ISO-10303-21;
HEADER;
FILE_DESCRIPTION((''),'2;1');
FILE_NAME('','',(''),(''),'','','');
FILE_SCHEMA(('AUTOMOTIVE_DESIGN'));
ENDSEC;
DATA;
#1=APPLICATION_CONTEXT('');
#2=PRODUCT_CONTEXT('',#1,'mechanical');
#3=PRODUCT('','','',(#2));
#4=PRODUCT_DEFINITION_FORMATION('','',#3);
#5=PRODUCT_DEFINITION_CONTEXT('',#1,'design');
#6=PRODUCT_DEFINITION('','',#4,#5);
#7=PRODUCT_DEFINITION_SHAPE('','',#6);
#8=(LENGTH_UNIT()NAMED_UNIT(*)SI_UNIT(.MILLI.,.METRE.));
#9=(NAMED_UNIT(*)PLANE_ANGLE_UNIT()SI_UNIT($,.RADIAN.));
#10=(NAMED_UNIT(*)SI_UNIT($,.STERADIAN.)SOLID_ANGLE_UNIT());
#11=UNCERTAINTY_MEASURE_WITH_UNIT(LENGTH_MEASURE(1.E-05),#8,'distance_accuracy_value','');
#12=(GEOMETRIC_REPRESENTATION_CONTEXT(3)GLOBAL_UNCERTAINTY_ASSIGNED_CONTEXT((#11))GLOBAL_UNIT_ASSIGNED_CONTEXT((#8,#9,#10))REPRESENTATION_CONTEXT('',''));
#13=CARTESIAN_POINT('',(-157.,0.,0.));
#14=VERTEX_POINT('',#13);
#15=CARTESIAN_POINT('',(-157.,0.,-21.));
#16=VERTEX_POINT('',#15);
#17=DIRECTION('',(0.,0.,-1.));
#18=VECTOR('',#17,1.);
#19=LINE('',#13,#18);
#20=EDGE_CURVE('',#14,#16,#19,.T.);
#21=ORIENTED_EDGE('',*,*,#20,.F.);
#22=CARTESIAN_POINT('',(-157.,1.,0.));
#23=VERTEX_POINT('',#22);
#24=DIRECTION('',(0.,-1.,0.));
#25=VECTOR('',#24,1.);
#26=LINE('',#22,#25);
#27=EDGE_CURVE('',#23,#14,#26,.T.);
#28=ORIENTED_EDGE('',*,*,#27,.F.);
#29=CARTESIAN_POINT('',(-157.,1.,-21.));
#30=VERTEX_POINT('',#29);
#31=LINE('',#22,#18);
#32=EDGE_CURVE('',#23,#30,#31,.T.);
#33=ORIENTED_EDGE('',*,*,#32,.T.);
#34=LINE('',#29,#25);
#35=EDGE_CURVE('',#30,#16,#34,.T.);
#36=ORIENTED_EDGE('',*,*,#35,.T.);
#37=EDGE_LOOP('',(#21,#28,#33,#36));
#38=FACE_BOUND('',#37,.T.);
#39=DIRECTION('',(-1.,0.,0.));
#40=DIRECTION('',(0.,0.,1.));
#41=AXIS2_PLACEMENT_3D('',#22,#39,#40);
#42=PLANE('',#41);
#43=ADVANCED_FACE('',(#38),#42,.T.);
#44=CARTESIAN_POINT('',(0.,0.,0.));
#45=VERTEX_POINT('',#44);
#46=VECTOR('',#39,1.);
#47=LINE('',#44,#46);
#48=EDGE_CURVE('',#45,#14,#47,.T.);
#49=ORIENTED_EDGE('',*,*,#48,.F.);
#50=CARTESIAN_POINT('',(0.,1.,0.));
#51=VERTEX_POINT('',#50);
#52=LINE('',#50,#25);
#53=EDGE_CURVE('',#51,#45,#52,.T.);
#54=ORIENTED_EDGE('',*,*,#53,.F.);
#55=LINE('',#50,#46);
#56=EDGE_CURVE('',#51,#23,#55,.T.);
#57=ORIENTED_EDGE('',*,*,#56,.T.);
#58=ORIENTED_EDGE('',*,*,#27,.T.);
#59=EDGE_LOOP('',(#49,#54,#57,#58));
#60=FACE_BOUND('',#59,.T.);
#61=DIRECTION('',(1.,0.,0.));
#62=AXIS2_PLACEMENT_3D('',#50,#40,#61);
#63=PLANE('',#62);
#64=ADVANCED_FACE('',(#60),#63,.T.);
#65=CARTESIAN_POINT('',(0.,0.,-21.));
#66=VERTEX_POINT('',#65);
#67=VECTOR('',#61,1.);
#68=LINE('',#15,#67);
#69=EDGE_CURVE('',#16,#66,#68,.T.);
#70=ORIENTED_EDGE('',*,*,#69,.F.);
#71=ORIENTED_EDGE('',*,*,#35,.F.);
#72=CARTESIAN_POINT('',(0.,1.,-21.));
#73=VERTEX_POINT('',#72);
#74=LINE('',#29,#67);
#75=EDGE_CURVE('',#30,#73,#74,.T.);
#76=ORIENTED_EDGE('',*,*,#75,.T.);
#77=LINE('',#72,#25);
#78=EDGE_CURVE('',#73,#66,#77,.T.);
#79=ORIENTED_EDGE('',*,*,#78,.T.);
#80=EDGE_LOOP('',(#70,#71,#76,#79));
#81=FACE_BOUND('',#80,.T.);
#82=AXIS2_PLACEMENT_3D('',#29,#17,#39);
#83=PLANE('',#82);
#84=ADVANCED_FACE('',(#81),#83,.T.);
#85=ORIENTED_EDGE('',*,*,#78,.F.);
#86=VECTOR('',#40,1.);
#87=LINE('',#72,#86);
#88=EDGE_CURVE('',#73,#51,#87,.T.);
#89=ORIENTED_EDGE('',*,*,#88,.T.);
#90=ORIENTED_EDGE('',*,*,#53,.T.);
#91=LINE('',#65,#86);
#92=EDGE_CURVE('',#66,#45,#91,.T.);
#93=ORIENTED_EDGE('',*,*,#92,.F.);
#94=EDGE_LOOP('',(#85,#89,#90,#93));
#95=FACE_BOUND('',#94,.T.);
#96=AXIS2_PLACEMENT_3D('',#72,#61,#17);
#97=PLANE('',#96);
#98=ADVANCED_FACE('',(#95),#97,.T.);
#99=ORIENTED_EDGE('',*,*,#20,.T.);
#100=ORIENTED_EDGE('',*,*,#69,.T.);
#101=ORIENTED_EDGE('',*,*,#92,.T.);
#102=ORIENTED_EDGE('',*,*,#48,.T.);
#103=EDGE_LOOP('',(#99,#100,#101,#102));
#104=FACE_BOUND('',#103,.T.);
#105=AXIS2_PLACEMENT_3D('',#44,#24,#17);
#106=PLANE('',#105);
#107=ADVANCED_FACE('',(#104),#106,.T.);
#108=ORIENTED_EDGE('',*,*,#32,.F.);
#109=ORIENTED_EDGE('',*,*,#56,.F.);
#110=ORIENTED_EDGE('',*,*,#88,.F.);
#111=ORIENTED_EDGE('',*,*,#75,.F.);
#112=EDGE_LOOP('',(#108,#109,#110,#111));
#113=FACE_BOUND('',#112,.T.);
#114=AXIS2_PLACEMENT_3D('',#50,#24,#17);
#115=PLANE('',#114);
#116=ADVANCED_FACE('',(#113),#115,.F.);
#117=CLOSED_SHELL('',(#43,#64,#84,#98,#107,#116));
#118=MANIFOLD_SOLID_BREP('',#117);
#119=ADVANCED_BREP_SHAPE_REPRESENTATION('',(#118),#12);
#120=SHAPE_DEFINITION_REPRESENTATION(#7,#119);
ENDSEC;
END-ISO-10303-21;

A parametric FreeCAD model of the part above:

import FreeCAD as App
import Part
import Sketcher

V = App.Vector


def add_polygon(sketch, points):
    """Adds a closed chain of lines whose ends are joined by coincident constraints."""
    first, n = sketch.GeometryCount, len(points)
    for a, b in zip(points, points[1:] + points[:1]):
        sketch.addGeometry(Part.LineSegment(App.Vector(*a, 0), App.Vector(*b, 0)), False)
    for i in range(n):
        sketch.addConstraint(Sketcher.Constraint("Coincident", first + i, 2, first + (i + 1) % n, 1))

doc = App.newDocument("Part")
body = doc.addObject("PartDesign::Body", "Body")

sketch1 = body.newObject("Sketcher::SketchObject", "Sketch")
sketch1.AttachmentSupport = (doc.getObject("XZ_Plane"), [""])
sketch1.MapMode = "FlatFace"
add_polygon(sketch1, [(-157, -21), (-157, 0), (0, 0), (0, -21)])
sketch1.addConstraint([
    Sketcher.Constraint("Vertical", 0),
    Sketcher.Constraint("Horizontal", 1),
    Sketcher.Constraint("Vertical", 2),
    Sketcher.Constraint("Horizontal", 3),
    Sketcher.Constraint("Coincident", 1, 2, -1, 1),
    Sketcher.Constraint("DistanceX", 1, 1, 1, 2, 157.0),
    Sketcher.Constraint("DistanceY", 0, 1, 0, 2, 21.0),
])
pad1 = body.newObject("PartDesign::Pad", "Pad")
pad1.Profile = sketch1
pad1.Length = 1
pad1.Reversed = True

doc.recompute()
